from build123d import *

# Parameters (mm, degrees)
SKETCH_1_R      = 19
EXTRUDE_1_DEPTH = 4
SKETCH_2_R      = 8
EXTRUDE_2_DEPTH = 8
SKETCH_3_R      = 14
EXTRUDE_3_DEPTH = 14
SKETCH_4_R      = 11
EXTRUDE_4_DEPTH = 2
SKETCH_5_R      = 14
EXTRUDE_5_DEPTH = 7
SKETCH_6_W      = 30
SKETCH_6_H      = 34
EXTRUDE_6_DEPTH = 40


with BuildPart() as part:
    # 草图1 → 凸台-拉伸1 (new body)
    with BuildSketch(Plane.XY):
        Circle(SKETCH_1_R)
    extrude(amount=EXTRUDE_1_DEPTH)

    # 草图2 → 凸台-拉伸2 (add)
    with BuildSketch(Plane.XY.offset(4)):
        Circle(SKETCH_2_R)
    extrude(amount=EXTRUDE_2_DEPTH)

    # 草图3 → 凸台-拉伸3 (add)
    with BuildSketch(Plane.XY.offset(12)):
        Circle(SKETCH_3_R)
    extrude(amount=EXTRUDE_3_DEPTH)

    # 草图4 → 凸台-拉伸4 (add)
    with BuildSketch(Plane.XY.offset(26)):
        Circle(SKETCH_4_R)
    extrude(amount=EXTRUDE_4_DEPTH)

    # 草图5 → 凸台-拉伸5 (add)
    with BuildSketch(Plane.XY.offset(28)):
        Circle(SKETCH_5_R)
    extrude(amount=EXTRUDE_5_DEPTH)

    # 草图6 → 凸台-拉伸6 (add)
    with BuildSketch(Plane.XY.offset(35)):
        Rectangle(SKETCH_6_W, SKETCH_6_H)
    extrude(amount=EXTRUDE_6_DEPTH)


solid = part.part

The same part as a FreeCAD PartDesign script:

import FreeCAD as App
import Part
import Sketcher
from FreeCAD import Vector
Q = App.Units.Quantity


def add_polygon(sketch, points):
    """Adds a closed chain of lines whose ends are joined by coincident constraints."""
    first, n = sketch.GeometryCount, len(points)
    for a, b in zip(points, points[1:] + points[:1]):
        sketch.addGeometry(Part.LineSegment(App.Vector(*a, 0), App.Vector(*b, 0)), False)
    for i in range(n):
        sketch.addConstraint(Sketcher.Constraint("Coincident", first + i, 2, first + (i + 1) % n, 1))

doc = App.newDocument("Part")
body = doc.addObject("PartDesign::Body", "Body")

sketch1 = body.newObject("Sketcher::SketchObject", "Sketch")
sketch1.AttachmentSupport = (doc.getObject("XY_Plane"), [""])
sketch1.MapMode = "FlatFace"
sketch1.addGeometry(Part.Circle(Vector(0, 0, 0), Vector(0, 0, 1), 19), False)
sketch1.addConstraint(Sketcher.Constraint("Coincident", 0, 3, -1, 1))
sketch1.addConstraint(Sketcher.Constraint("Diameter", 0, Q("38 mm")))
pad1 = body.newObject("PartDesign::Pad", "Pad")
pad1.Profile = sketch1
pad1.Length = 4

sketch2 = body.newObject("Sketcher::SketchObject", "Sketch001")
sketch2.AttachmentSupport = (doc.getObject("XY_Plane"), [""])
sketch2.MapMode = "FlatFace"
sketch2.AttachmentOffset = App.Placement(Vector(0, 0, 4), App.Rotation())
sketch2.addGeometry(Part.Circle(Vector(0, 0, 0), Vector(0, 0, 1), 8), False)
sketch2.addConstraint(Sketcher.Constraint("Coincident", 0, 3, -1, 1))
sketch2.addConstraint(Sketcher.Constraint("Diameter", 0, Q("16 mm")))
pad2 = body.newObject("PartDesign::Pad", "Pad001")
pad2.Profile = sketch2
pad2.Length = 8

sketch3 = body.newObject("Sketcher::SketchObject", "Sketch002")
sketch3.AttachmentSupport = (doc.getObject("XY_Plane"), [""])
sketch3.MapMode = "FlatFace"
sketch3.AttachmentOffset = App.Placement(Vector(0, 0, 12), App.Rotation())
sketch3.addGeometry(Part.Circle(Vector(0, 0, 0), Vector(0, 0, 1), 14), False)
sketch3.addConstraint(Sketcher.Constraint("Coincident", 0, 3, -1, 1))
sketch3.addConstraint(Sketcher.Constraint("Diameter", 0, Q("28 mm")))
pad3 = body.newObject("PartDesign::Pad", "Pad002")
pad3.Profile = sketch3
pad3.Length = 14

sketch4 = body.newObject("Sketcher::SketchObject", "Sketch003")
sketch4.AttachmentSupport = (doc.getObject("XY_Plane"), [""])
sketch4.MapMode = "FlatFace"
sketch4.AttachmentOffset = App.Placement(Vector(0, 0, 26), App.Rotation())
sketch4.addGeometry(Part.Circle(Vector(0, 0, 0), Vector(0, 0, 1), 11), False)
sketch4.addConstraint(Sketcher.Constraint("Coincident", 0, 3, -1, 1))
sketch4.addConstraint(Sketcher.Constraint("Diameter", 0, Q("22 mm")))
pad4 = body.newObject("PartDesign::Pad", "Pad003")
pad4.Profile = sketch4
pad4.Length = 2

sketch5 = body.newObject("Sketcher::SketchObject", "Sketch004")
sketch5.AttachmentSupport = (doc.getObject("XY_Plane"), [""])
sketch5.MapMode = "FlatFace"
sketch5.AttachmentOffset = App.Placement(Vector(0, 0, 28), App.Rotation())
sketch5.addGeometry(Part.Circle(Vector(0, 0, 0), Vector(0, 0, 1), 14), False)
sketch5.addConstraint(Sketcher.Constraint("Coincident", 0, 3, -1, 1))
sketch5.addConstraint(Sketcher.Constraint("Diameter", 0, Q("28 mm")))
pad5 = body.newObject("PartDesign::Pad", "Pad004")
pad5.Profile = sketch5
pad5.Length = 7

sketch6 = body.newObject("Sketcher::SketchObject", "Sketch005")
sketch6.AttachmentSupport = (doc.getObject("XY_Plane"), [""])
sketch6.MapMode = "FlatFace"
sketch6.AttachmentOffset = App.Placement(Vector(0, 0, 35), App.Rotation())
add_polygon(sketch6, [(-15, 17), (-15, -17), (15, -17), (15, 17)])
sketch6.addConstraint(Sketcher.Constraint("Vertical", 0))
sketch6.addConstraint(Sketcher.Constraint("Horizontal", 1))
sketch6.addConstraint(Sketcher.Constraint("Vertical", 2))
sketch6.addConstraint(Sketcher.Constraint("Horizontal", 3))
sketch6.addConstraint(Sketcher.Constraint("Symmetric", 0, 2, 2, 2, -1, 1))
sketch6.addConstraint(Sketcher.Constraint("DistanceX", 1, 1, 1, 2, Q("30 mm")))
sketch6.addConstraint(Sketcher.Constraint("DistanceY", 0, 2, 0, 1, Q("34 mm")))
pad6 = body.newObject("PartDesign::Pad", "Pad005")
pad6.Profile = sketch6
pad6.Length = 40

doc.recompute()
